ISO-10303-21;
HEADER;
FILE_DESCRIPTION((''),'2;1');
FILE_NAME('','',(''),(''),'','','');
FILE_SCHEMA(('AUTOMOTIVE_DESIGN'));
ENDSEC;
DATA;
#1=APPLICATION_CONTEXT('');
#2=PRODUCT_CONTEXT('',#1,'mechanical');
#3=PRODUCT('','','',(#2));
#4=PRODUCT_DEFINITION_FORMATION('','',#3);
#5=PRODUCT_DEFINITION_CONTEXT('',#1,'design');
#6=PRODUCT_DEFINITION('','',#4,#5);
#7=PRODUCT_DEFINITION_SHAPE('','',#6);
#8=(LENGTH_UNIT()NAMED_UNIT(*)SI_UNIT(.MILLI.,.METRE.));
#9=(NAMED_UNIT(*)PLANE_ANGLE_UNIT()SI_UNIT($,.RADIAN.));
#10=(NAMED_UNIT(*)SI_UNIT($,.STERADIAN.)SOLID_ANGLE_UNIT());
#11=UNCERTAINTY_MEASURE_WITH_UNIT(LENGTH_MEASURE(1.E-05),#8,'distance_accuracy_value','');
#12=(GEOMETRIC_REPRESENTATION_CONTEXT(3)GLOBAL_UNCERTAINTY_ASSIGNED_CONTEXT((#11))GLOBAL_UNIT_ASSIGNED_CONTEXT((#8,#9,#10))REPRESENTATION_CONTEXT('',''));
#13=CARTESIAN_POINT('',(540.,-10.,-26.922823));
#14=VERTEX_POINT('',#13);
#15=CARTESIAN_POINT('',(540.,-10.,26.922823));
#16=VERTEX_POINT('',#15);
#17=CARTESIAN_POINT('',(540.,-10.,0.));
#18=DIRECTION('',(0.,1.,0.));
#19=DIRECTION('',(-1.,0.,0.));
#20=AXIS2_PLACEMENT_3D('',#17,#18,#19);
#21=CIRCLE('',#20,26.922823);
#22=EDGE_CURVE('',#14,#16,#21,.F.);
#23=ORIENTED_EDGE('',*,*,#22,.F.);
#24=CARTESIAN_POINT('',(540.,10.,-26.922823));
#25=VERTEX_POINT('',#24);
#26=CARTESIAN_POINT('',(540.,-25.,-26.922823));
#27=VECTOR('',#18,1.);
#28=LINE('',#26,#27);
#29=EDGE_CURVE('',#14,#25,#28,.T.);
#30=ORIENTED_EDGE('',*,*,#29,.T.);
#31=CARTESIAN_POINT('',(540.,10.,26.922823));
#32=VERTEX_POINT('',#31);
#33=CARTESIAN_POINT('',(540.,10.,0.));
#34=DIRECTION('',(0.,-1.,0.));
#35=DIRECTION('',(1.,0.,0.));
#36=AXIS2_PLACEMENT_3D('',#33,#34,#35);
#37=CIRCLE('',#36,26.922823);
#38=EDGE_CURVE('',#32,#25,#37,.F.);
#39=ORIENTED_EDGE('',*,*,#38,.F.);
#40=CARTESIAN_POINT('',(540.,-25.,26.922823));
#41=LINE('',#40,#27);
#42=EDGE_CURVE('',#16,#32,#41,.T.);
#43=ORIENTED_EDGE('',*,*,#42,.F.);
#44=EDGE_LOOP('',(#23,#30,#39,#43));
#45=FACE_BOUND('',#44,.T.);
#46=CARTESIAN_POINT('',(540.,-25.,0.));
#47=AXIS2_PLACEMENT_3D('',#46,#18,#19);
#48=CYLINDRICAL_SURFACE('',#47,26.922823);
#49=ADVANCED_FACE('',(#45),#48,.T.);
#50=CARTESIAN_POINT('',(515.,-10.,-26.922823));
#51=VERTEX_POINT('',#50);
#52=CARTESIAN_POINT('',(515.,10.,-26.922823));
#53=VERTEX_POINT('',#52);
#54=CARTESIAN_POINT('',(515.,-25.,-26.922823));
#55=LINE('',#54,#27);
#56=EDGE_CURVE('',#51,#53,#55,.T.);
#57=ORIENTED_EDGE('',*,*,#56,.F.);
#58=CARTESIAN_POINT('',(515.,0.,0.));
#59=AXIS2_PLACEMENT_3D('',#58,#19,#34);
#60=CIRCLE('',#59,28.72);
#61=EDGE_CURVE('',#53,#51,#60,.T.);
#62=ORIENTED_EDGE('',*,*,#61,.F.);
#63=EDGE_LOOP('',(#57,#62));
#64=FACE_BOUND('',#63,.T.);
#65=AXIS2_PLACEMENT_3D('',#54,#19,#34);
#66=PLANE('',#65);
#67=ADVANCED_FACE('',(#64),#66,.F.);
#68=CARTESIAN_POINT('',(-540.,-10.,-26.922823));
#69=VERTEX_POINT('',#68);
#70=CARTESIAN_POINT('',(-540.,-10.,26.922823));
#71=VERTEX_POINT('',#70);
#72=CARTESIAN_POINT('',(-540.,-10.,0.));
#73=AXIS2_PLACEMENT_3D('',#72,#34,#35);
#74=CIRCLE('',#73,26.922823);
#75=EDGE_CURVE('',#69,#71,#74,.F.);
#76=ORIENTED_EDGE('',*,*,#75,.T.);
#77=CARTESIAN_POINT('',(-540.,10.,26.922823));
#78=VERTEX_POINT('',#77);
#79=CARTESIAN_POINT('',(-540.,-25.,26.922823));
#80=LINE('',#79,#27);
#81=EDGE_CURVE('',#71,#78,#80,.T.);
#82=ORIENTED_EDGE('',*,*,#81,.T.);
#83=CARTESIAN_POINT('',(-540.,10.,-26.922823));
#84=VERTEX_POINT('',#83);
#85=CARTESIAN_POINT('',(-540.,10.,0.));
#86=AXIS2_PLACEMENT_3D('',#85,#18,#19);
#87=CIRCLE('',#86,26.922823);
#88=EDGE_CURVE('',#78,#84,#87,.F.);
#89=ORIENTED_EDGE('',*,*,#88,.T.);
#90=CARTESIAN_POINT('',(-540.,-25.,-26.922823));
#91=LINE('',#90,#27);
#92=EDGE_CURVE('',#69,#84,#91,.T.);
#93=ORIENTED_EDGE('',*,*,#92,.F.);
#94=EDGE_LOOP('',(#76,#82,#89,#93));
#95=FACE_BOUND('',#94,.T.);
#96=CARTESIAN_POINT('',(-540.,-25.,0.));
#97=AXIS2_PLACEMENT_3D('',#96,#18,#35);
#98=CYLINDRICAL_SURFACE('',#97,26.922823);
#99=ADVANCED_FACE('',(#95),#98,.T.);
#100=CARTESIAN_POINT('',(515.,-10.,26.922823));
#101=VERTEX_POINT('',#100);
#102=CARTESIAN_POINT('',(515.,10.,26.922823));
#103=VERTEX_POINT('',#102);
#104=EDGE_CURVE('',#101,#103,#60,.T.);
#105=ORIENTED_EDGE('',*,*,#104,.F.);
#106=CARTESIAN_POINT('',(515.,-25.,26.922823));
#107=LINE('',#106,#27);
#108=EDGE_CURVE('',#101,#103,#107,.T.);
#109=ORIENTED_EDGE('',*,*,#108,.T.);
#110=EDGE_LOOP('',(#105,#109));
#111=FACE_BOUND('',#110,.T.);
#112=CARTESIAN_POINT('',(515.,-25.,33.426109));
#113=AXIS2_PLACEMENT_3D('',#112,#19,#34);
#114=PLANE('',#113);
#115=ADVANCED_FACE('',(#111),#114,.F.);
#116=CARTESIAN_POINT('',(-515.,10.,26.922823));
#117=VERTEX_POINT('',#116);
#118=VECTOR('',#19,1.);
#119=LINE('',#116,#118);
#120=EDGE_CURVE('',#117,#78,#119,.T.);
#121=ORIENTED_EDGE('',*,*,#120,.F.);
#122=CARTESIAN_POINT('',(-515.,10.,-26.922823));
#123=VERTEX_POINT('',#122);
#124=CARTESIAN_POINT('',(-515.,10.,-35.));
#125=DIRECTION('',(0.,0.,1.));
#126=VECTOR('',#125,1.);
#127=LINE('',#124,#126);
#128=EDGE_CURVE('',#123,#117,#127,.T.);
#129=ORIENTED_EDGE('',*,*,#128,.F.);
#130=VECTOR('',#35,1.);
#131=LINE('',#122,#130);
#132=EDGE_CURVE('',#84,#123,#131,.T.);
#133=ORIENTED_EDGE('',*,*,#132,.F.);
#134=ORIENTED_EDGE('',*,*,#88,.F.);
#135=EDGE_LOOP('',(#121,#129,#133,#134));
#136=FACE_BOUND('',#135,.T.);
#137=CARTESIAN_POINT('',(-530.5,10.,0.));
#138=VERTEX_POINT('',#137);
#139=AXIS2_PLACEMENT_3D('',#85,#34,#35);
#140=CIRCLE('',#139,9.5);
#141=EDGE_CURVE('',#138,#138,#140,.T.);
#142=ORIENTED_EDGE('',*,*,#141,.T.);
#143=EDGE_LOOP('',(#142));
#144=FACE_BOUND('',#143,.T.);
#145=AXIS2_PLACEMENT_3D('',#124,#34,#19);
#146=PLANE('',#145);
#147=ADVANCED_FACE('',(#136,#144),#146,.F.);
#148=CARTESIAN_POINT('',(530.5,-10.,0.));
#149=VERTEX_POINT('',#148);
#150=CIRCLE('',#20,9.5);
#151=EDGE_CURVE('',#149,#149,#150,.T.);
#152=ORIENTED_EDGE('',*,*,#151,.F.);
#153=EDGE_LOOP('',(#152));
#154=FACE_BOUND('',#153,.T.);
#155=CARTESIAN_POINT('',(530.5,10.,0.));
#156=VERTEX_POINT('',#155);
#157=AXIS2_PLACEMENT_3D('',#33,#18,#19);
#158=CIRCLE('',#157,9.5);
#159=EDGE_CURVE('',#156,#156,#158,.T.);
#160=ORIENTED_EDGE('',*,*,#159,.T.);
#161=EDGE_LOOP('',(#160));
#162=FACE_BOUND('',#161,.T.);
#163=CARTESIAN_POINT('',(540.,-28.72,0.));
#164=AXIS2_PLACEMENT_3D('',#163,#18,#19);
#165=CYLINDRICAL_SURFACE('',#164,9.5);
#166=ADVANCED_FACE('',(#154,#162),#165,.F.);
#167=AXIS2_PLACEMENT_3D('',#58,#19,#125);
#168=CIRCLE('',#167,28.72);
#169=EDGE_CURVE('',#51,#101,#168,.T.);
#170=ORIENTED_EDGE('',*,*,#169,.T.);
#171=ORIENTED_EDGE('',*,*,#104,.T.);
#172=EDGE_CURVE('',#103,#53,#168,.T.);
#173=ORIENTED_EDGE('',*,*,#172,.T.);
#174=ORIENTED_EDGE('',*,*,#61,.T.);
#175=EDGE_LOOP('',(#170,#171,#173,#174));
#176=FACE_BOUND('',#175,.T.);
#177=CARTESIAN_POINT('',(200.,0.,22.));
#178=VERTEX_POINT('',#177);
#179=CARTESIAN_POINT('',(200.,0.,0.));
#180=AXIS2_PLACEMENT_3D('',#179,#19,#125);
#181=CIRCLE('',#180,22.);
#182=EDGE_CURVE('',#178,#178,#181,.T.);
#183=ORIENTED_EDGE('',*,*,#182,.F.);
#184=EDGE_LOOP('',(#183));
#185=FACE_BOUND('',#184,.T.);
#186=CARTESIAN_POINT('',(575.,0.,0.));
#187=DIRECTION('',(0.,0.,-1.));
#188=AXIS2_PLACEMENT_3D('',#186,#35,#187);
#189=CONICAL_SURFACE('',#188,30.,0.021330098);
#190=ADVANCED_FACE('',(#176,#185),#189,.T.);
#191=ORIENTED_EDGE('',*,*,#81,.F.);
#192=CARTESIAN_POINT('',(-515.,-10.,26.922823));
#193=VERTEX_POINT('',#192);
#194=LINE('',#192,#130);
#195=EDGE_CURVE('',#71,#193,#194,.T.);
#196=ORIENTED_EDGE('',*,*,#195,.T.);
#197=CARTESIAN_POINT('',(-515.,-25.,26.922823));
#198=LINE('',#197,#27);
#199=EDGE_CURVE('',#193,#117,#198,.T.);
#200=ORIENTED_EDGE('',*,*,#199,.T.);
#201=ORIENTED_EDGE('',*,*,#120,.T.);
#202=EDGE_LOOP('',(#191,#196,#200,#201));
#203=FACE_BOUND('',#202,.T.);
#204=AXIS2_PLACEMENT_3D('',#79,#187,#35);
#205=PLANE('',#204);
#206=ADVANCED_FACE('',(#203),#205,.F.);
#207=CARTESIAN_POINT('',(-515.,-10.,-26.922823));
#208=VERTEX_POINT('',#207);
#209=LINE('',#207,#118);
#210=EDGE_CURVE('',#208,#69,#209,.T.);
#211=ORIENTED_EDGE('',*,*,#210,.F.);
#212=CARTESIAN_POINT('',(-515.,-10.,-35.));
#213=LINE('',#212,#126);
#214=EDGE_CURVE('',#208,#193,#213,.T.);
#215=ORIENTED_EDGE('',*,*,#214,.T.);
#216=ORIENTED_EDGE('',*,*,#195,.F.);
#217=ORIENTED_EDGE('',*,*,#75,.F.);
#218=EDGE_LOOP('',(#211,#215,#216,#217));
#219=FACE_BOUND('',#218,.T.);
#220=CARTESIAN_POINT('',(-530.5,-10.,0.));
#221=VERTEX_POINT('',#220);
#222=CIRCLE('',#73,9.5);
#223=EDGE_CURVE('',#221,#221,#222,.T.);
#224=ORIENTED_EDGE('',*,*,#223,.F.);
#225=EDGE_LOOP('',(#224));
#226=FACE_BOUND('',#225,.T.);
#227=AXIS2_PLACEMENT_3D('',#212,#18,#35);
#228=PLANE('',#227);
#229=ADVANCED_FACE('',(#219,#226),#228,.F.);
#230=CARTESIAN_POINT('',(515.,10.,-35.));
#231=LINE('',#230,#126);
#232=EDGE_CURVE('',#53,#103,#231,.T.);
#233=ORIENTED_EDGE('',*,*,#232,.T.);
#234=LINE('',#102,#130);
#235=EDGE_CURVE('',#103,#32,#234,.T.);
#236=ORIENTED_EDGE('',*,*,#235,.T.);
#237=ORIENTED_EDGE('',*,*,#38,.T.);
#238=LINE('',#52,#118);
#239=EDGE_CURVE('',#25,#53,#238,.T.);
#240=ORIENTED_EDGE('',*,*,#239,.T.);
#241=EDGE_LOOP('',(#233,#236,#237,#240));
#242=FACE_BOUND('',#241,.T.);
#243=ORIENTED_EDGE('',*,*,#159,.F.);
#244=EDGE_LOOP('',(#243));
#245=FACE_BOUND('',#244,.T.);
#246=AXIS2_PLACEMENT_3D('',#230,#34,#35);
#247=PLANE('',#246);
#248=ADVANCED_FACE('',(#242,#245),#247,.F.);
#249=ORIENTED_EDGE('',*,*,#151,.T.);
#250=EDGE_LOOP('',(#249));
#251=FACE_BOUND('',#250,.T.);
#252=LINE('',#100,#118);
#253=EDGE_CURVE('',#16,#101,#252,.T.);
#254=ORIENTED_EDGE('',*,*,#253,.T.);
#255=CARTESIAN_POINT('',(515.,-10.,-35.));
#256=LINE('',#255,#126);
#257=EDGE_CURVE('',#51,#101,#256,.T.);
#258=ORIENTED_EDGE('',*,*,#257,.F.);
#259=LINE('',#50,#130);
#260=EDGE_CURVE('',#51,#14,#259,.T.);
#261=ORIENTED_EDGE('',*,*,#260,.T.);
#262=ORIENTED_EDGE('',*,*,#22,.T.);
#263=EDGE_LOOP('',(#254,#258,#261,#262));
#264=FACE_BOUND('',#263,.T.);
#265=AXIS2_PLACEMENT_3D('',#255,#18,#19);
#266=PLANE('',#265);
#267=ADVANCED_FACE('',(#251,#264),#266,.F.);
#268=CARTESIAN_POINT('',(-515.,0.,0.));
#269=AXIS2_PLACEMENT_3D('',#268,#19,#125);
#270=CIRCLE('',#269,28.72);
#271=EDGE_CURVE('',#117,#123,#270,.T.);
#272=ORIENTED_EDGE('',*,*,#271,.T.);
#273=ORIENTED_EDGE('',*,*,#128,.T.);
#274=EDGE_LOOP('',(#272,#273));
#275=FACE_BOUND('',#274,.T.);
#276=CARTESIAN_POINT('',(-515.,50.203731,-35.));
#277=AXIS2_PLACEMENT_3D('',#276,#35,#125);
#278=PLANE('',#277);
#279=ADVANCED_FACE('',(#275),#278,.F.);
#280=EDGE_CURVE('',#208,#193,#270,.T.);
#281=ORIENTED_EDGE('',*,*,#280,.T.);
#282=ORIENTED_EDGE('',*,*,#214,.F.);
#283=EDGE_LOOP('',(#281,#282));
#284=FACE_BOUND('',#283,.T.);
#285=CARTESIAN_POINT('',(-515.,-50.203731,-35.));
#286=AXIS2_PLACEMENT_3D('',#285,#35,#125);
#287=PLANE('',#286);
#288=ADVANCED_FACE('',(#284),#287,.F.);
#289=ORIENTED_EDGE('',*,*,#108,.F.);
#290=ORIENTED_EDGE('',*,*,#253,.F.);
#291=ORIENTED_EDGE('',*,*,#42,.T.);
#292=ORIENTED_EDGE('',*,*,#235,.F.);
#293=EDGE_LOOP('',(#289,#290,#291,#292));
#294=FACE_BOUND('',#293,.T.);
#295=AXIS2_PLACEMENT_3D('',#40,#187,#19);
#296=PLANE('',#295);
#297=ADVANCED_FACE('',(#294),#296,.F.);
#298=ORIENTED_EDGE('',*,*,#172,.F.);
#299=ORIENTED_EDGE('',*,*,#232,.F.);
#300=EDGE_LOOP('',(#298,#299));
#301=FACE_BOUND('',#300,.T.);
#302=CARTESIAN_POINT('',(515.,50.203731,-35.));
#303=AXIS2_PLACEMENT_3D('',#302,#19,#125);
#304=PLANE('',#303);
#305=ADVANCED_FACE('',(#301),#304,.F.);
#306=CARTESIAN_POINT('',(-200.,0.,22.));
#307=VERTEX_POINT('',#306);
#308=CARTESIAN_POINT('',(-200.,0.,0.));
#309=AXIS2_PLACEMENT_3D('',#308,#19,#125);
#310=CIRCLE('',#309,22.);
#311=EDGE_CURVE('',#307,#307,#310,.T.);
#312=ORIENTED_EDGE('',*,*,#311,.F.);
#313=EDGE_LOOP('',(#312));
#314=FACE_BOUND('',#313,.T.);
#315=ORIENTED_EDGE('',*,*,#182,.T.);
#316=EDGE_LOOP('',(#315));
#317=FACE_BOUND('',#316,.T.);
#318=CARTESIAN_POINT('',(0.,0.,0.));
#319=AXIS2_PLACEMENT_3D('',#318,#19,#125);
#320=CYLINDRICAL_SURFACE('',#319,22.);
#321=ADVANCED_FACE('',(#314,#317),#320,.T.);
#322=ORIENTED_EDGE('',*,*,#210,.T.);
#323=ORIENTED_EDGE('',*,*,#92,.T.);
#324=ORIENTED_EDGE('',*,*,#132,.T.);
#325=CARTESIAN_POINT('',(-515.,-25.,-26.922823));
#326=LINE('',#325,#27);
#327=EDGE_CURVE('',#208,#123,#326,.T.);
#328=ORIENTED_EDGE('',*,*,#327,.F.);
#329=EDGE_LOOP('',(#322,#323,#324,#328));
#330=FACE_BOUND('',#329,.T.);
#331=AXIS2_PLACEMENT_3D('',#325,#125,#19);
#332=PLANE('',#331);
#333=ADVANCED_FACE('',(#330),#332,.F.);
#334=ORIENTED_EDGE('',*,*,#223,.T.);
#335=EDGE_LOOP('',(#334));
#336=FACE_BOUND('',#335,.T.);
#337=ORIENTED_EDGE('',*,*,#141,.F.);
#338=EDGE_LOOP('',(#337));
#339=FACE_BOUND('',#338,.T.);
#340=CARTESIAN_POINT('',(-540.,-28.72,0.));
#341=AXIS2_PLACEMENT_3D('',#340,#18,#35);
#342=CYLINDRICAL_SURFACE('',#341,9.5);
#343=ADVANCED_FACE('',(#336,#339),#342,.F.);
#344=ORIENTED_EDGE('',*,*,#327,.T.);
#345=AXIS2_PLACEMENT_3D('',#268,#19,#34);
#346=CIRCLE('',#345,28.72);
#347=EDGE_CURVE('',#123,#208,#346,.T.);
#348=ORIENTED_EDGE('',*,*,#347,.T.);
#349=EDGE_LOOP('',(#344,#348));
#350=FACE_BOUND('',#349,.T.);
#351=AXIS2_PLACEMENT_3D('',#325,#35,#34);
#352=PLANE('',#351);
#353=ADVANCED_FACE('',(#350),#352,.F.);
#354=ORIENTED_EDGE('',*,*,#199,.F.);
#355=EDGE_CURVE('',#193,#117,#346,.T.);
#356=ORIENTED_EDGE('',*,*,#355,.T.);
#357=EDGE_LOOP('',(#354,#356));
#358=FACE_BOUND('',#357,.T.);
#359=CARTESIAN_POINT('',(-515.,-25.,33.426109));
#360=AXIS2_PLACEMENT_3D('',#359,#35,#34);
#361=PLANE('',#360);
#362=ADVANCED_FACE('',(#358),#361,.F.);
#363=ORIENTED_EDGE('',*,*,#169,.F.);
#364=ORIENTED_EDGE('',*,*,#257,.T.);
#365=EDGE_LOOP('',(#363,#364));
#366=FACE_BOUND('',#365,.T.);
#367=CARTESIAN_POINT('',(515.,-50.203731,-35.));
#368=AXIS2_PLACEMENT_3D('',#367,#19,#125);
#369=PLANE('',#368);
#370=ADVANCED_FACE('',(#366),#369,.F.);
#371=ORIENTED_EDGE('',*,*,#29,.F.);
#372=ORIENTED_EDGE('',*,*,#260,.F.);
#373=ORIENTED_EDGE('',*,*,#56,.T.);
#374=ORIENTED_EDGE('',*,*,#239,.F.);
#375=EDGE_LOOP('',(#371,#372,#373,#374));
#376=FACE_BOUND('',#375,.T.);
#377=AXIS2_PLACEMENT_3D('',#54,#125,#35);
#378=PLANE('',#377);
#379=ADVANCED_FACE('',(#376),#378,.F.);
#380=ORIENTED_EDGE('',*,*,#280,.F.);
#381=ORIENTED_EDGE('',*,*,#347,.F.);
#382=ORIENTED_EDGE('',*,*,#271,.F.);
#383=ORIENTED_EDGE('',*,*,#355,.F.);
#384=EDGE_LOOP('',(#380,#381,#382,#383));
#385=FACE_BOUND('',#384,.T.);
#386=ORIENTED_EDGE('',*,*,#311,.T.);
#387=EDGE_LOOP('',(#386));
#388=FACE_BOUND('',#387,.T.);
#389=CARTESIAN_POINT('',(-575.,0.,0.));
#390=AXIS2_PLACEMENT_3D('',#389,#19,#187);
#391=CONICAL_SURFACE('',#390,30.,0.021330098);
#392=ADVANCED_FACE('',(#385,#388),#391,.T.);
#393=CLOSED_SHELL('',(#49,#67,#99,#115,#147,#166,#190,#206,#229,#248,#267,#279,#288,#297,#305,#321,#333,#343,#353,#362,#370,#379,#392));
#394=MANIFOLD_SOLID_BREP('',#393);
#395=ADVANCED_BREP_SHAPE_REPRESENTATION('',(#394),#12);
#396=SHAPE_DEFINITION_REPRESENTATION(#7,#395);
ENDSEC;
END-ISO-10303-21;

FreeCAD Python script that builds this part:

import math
import FreeCAD as App
import Part
import Sketcher
from FreeCAD import Vector
Q = App.Units.Quantity


def add_polygon(sketch, points):
    """Adds a closed chain of lines whose ends are joined by coincident constraints."""
    first, n = sketch.GeometryCount, len(points)
    for a, b in zip(points, points[1:] + points[:1]):
        sketch.addGeometry(Part.LineSegment(App.Vector(*a, 0), App.Vector(*b, 0)), False)
    for i in range(n):
        sketch.addConstraint(Sketcher.Constraint("Coincident", first + i, 2, first + (i + 1) % n, 1))

doc = App.newDocument("Part")
params = doc.addObject("Spreadsheet::Sheet", "Params")
for row, (alias, value) in enumerate([
    ("sketch1_width", "575 mm"),
    ("sketch1_width2", "200 mm"),
    ("sketch1_height", "30 mm"),
    ("sketch1_height2", "22 mm"),
    ("revolution_angle", "360 deg"),
    ("pocket1_length", "70 mm"),
    ("sketch3_width", "25 mm"),
    ("pocket2_length", "70 mm"),
    ("sketch4_diameter", "19 mm"),
], start=1):
    params.set(f"A{row}", alias)
    params.set(f"B{row}", "=" + value)
    params.setAlias(f"B{row}", alias)

body = doc.addObject("PartDesign::Body", "Body")

# Sketch on XY plane
sketch1 = doc.addObject("Sketcher::SketchObject", "Sketch")
body.addObject(sketch1)
sketch1.AttachmentSupport = (doc.XY_Plane, [""])
sketch1.MapMode = "FlatFace"
add_polygon(sketch1, [(0, 0), (575, 0), (575, 30), (200, 22), (0, 22)])  # lines 0-4
sketch1.addConstraint(Sketcher.Constraint("Horizontal", 0))
sketch1.addConstraint(Sketcher.Constraint("Vertical", 1))
sketch1.addConstraint(Sketcher.Constraint("Horizontal", 3))
sketch1.addConstraint(Sketcher.Constraint("Vertical", 4))
sketch1.addConstraint(Sketcher.Constraint("Coincident", 4, 2, -1, 1))
sketch1.addConstraint(Sketcher.Constraint("DistanceX", 0, 1, 0, 2, Q("575 mm")))
sketch1.addConstraint(Sketcher.Constraint("DistanceX", 3, 2, 3, 1, Q("200 mm")))
sketch1.addConstraint(Sketcher.Constraint("DistanceY", 1, 1, 1, 2, Q("30 mm")))
sketch1.addConstraint(Sketcher.Constraint("DistanceY", 4, 2, 4, 1, Q("22 mm")))
sketch1.setExpression("Constraints[10]", "Params.sketch1_width")
sketch1.setExpression("Constraints[11]", "Params.sketch1_width2")
sketch1.setExpression("Constraints[12]", "Params.sketch1_height")
sketch1.setExpression("Constraints[13]", "Params.sketch1_height2")
revolution = doc.addObject("PartDesign::Revolution", "Revolution")
body.addObject(revolution)
revolution.Profile = sketch1
revolution.ReferenceAxis = (sketch1, ["H_Axis"])
revolution.setExpression("Angle", "Params.revolution_angle")

# Sketch on XY plane
sketch2 = doc.addObject("Sketcher::SketchObject", "Sketch001")
body.addObject(sketch2)
sketch2.AttachmentSupport = (doc.XY_Plane, [""])
sketch2.MapMode = "FlatFace"
add_polygon(sketch2, [(515, 50), (515, 10), (596, 10), (596, 50)])  # lines 0-3
add_polygon(sketch2, [(515, -10), (515, -50), (596, -50), (596, -10)])  # lines 4-7
sketch2.addConstraint(Sketcher.Constraint("Vertical", 0))
sketch2.addConstraint(Sketcher.Constraint("Horizontal", 1))
sketch2.addConstraint(Sketcher.Constraint("Vertical", 2))
sketch2.addConstraint(Sketcher.Constraint("Horizontal", 3))
sketch2.addConstraint(Sketcher.Constraint("Vertical", 4))
sketch2.addConstraint(Sketcher.Constraint("Horizontal", 5))
sketch2.addConstraint(Sketcher.Constraint("Vertical", 6))
sketch2.addConstraint(Sketcher.Constraint("Horizontal", 7))
sketch2.addConstraint(Sketcher.Constraint("Symmetric", 3, 2, 4, 2, -1))
sketch2.addConstraint(Sketcher.Constraint("Symmetric", 1, 2, 6, 2, -1))
sketch2.addConstraint(Sketcher.Constraint("DistanceX", -1, 1, 0, 2, Q("515 mm")))
sketch2.addConstraint(Sketcher.Constraint("DistanceY", -1, 1, 0, 2, Q("10 mm")))
sketch2.addConstraint(Sketcher.Constraint("DistanceY", 0, 2, 0, 1, Q("40.203731 mm")))
sketch2.addConstraint(Sketcher.Constraint("DistanceX", 1, 1, 1, 2, Q("81.219897 mm")))
pocket1 = doc.addObject("PartDesign::Pocket", "Pocket")
body.addObject(pocket1)
pocket1.Profile = sketch2
pocket1.setExpression("Length", "Params.pocket1_length")
pocket1.Midplane = True

# Sketch on XZ plane
sketch3 = doc.addObject("Sketcher::SketchObject", "Sketch002")
body.addObject(sketch3)
sketch3.AttachmentSupport = (doc.XZ_Plane, [""])
sketch3.MapMode = "FlatFace"
sketch3.AttachmentOffset = App.Placement(Vector(0, 0, -10), App.Rotation())
sketch3.addGeometry(Part.LineSegment(Vector(515, -27, 0), Vector(540, -27, 0)), False)
sketch3.addGeometry(Part.ArcOfCircle(Part.Circle(Vector(540, 0, 0), Vector(0, 0, 1), 27), math.radians(-90), math.radians(90)), False)
sketch3.addGeometry(Part.LineSegment(Vector(540, 27, 0), Vector(515, 27, 0)), False)
sketch3.addGeometry(Part.LineSegment(Vector(515, 27, 0), Vector(515, 33, 0)), False)
sketch3.addGeometry(Part.LineSegment(Vector(515, 33, 0), Vector(580, 33, 0)), False)
sketch3.addGeometry(Part.LineSegment(Vector(580, 33, 0), Vector(580, -35, 0)), False)
sketch3.addGeometry(Part.LineSegment(Vector(580, -35, 0), Vector(515, -35, 0)), False)
sketch3.addGeometry(Part.LineSegment(Vector(515, -35, 0), Vector(515, -27, 0)), False)
sketch3.addConstraint(Sketcher.Constraint("Tangent", 0, 2, 1, 1))
sketch3.addConstraint(Sketcher.Constraint("Tangent", 1, 2, 2, 1))
sketch3.addConstraint(Sketcher.Constraint("Coincident", 2, 2, 3, 1))
sketch3.addConstraint(Sketcher.Constraint("Coincident", 3, 2, 4, 1))
sketch3.addConstraint(Sketcher.Constraint("Coincident", 4, 2, 5, 1))
sketch3.addConstraint(Sketcher.Constraint("Coincident", 5, 2, 6, 1))
sketch3.addConstraint(Sketcher.Constraint("Coincident", 6, 2, 7, 1))
sketch3.addConstraint(Sketcher.Constraint("Coincident", 7, 2, 0, 1))
sketch3.addConstraint(Sketcher.Constraint("Horizontal", 0))
sketch3.addConstraint(Sketcher.Constraint("Horizontal", 2))
sketch3.addConstraint(Sketcher.Constraint("Vertical", 3))
sketch3.addConstraint(Sketcher.Constraint("Horizontal", 4))
sketch3.addConstraint(Sketcher.Constraint("Vertical", 5))
sketch3.addConstraint(Sketcher.Constraint("Horizontal", 6))
sketch3.addConstraint(Sketcher.Constraint("Vertical", 7))
sketch3.addConstraint(Sketcher.Constraint("Symmetric", 2, 2, 7, 2, -1))
sketch3.addConstraint(Sketcher.Constraint("DistanceX", 0, 1, 0, 2, Q("25 mm")))
sketch3.addConstraint(Sketcher.Constraint("DistanceX", -1, 1, 1, 3, Q("540 mm")))
sketch3.addConstraint(Sketcher.Constraint("Radius", 1, Q("26.922823 mm")))
sketch3.addConstraint(Sketcher.Constraint("DistanceX", 4, 1, 4, 2, Q("64.528772 mm")))
sketch3.addConstraint(Sketcher.Constraint("DistanceY", 5, 2, 5, 1, Q("68.52578 mm")))
sketch3.addConstraint(Sketcher.Constraint("DistanceY", 3, 1, 3, 2, Q("6.503286 mm")))
sketch3.setExpression("Constraints[16]", "Params.sketch3_width")
pocket2 = doc.addObject("PartDesign::Pocket", "Pocket001")
body.addObject(pocket2)
pocket2.Profile = sketch3
pocket2.setExpression("Length", "Params.pocket2_length")
pocket2.Midplane = True

# Sketch on XZ plane
sketch4 = doc.addObject("Sketcher::SketchObject", "Sketch003")
body.addObject(sketch4)
sketch4.AttachmentSupport = (doc.XZ_Plane, [""])
sketch4.MapMode = "FlatFace"
sketch4.AttachmentOffset = App.Placement(Vector(0, 0, -10), App.Rotation())
sketch4.addGeometry(Part.Circle(Vector(540, 0, 0), Vector(0, 0, 1), 10), False)
sketch4.addConstraint(Sketcher.Constraint("PointOnObject", 0, 3, -1))
sketch4.addConstraint(Sketcher.Constraint("Diameter", 0, Q("19 mm")))
sketch4.addConstraint(Sketcher.Constraint("DistanceX", -1, 1, 0, 3, Q("540 mm")))
sketch4.setExpression("Constraints[1]", "Params.sketch4_diameter")
pocket3 = doc.addObject("PartDesign::Pocket", "Pocket002")
body.addObject(pocket3)
pocket3.Profile = sketch4
pocket3.Type = "ThroughAll"
pocket3.Reversed = True
doc.recompute()

mirrored = doc.addObject("PartDesign::Mirrored", "Mirrored")
body.addObject(mirrored)
mirrored.Originals = [revolution, pocket1, pocket2, pocket3]
mirrored.MirrorPlane = (doc.YZ_Plane, [""])
body.Tip = mirrored

doc.recompute()
